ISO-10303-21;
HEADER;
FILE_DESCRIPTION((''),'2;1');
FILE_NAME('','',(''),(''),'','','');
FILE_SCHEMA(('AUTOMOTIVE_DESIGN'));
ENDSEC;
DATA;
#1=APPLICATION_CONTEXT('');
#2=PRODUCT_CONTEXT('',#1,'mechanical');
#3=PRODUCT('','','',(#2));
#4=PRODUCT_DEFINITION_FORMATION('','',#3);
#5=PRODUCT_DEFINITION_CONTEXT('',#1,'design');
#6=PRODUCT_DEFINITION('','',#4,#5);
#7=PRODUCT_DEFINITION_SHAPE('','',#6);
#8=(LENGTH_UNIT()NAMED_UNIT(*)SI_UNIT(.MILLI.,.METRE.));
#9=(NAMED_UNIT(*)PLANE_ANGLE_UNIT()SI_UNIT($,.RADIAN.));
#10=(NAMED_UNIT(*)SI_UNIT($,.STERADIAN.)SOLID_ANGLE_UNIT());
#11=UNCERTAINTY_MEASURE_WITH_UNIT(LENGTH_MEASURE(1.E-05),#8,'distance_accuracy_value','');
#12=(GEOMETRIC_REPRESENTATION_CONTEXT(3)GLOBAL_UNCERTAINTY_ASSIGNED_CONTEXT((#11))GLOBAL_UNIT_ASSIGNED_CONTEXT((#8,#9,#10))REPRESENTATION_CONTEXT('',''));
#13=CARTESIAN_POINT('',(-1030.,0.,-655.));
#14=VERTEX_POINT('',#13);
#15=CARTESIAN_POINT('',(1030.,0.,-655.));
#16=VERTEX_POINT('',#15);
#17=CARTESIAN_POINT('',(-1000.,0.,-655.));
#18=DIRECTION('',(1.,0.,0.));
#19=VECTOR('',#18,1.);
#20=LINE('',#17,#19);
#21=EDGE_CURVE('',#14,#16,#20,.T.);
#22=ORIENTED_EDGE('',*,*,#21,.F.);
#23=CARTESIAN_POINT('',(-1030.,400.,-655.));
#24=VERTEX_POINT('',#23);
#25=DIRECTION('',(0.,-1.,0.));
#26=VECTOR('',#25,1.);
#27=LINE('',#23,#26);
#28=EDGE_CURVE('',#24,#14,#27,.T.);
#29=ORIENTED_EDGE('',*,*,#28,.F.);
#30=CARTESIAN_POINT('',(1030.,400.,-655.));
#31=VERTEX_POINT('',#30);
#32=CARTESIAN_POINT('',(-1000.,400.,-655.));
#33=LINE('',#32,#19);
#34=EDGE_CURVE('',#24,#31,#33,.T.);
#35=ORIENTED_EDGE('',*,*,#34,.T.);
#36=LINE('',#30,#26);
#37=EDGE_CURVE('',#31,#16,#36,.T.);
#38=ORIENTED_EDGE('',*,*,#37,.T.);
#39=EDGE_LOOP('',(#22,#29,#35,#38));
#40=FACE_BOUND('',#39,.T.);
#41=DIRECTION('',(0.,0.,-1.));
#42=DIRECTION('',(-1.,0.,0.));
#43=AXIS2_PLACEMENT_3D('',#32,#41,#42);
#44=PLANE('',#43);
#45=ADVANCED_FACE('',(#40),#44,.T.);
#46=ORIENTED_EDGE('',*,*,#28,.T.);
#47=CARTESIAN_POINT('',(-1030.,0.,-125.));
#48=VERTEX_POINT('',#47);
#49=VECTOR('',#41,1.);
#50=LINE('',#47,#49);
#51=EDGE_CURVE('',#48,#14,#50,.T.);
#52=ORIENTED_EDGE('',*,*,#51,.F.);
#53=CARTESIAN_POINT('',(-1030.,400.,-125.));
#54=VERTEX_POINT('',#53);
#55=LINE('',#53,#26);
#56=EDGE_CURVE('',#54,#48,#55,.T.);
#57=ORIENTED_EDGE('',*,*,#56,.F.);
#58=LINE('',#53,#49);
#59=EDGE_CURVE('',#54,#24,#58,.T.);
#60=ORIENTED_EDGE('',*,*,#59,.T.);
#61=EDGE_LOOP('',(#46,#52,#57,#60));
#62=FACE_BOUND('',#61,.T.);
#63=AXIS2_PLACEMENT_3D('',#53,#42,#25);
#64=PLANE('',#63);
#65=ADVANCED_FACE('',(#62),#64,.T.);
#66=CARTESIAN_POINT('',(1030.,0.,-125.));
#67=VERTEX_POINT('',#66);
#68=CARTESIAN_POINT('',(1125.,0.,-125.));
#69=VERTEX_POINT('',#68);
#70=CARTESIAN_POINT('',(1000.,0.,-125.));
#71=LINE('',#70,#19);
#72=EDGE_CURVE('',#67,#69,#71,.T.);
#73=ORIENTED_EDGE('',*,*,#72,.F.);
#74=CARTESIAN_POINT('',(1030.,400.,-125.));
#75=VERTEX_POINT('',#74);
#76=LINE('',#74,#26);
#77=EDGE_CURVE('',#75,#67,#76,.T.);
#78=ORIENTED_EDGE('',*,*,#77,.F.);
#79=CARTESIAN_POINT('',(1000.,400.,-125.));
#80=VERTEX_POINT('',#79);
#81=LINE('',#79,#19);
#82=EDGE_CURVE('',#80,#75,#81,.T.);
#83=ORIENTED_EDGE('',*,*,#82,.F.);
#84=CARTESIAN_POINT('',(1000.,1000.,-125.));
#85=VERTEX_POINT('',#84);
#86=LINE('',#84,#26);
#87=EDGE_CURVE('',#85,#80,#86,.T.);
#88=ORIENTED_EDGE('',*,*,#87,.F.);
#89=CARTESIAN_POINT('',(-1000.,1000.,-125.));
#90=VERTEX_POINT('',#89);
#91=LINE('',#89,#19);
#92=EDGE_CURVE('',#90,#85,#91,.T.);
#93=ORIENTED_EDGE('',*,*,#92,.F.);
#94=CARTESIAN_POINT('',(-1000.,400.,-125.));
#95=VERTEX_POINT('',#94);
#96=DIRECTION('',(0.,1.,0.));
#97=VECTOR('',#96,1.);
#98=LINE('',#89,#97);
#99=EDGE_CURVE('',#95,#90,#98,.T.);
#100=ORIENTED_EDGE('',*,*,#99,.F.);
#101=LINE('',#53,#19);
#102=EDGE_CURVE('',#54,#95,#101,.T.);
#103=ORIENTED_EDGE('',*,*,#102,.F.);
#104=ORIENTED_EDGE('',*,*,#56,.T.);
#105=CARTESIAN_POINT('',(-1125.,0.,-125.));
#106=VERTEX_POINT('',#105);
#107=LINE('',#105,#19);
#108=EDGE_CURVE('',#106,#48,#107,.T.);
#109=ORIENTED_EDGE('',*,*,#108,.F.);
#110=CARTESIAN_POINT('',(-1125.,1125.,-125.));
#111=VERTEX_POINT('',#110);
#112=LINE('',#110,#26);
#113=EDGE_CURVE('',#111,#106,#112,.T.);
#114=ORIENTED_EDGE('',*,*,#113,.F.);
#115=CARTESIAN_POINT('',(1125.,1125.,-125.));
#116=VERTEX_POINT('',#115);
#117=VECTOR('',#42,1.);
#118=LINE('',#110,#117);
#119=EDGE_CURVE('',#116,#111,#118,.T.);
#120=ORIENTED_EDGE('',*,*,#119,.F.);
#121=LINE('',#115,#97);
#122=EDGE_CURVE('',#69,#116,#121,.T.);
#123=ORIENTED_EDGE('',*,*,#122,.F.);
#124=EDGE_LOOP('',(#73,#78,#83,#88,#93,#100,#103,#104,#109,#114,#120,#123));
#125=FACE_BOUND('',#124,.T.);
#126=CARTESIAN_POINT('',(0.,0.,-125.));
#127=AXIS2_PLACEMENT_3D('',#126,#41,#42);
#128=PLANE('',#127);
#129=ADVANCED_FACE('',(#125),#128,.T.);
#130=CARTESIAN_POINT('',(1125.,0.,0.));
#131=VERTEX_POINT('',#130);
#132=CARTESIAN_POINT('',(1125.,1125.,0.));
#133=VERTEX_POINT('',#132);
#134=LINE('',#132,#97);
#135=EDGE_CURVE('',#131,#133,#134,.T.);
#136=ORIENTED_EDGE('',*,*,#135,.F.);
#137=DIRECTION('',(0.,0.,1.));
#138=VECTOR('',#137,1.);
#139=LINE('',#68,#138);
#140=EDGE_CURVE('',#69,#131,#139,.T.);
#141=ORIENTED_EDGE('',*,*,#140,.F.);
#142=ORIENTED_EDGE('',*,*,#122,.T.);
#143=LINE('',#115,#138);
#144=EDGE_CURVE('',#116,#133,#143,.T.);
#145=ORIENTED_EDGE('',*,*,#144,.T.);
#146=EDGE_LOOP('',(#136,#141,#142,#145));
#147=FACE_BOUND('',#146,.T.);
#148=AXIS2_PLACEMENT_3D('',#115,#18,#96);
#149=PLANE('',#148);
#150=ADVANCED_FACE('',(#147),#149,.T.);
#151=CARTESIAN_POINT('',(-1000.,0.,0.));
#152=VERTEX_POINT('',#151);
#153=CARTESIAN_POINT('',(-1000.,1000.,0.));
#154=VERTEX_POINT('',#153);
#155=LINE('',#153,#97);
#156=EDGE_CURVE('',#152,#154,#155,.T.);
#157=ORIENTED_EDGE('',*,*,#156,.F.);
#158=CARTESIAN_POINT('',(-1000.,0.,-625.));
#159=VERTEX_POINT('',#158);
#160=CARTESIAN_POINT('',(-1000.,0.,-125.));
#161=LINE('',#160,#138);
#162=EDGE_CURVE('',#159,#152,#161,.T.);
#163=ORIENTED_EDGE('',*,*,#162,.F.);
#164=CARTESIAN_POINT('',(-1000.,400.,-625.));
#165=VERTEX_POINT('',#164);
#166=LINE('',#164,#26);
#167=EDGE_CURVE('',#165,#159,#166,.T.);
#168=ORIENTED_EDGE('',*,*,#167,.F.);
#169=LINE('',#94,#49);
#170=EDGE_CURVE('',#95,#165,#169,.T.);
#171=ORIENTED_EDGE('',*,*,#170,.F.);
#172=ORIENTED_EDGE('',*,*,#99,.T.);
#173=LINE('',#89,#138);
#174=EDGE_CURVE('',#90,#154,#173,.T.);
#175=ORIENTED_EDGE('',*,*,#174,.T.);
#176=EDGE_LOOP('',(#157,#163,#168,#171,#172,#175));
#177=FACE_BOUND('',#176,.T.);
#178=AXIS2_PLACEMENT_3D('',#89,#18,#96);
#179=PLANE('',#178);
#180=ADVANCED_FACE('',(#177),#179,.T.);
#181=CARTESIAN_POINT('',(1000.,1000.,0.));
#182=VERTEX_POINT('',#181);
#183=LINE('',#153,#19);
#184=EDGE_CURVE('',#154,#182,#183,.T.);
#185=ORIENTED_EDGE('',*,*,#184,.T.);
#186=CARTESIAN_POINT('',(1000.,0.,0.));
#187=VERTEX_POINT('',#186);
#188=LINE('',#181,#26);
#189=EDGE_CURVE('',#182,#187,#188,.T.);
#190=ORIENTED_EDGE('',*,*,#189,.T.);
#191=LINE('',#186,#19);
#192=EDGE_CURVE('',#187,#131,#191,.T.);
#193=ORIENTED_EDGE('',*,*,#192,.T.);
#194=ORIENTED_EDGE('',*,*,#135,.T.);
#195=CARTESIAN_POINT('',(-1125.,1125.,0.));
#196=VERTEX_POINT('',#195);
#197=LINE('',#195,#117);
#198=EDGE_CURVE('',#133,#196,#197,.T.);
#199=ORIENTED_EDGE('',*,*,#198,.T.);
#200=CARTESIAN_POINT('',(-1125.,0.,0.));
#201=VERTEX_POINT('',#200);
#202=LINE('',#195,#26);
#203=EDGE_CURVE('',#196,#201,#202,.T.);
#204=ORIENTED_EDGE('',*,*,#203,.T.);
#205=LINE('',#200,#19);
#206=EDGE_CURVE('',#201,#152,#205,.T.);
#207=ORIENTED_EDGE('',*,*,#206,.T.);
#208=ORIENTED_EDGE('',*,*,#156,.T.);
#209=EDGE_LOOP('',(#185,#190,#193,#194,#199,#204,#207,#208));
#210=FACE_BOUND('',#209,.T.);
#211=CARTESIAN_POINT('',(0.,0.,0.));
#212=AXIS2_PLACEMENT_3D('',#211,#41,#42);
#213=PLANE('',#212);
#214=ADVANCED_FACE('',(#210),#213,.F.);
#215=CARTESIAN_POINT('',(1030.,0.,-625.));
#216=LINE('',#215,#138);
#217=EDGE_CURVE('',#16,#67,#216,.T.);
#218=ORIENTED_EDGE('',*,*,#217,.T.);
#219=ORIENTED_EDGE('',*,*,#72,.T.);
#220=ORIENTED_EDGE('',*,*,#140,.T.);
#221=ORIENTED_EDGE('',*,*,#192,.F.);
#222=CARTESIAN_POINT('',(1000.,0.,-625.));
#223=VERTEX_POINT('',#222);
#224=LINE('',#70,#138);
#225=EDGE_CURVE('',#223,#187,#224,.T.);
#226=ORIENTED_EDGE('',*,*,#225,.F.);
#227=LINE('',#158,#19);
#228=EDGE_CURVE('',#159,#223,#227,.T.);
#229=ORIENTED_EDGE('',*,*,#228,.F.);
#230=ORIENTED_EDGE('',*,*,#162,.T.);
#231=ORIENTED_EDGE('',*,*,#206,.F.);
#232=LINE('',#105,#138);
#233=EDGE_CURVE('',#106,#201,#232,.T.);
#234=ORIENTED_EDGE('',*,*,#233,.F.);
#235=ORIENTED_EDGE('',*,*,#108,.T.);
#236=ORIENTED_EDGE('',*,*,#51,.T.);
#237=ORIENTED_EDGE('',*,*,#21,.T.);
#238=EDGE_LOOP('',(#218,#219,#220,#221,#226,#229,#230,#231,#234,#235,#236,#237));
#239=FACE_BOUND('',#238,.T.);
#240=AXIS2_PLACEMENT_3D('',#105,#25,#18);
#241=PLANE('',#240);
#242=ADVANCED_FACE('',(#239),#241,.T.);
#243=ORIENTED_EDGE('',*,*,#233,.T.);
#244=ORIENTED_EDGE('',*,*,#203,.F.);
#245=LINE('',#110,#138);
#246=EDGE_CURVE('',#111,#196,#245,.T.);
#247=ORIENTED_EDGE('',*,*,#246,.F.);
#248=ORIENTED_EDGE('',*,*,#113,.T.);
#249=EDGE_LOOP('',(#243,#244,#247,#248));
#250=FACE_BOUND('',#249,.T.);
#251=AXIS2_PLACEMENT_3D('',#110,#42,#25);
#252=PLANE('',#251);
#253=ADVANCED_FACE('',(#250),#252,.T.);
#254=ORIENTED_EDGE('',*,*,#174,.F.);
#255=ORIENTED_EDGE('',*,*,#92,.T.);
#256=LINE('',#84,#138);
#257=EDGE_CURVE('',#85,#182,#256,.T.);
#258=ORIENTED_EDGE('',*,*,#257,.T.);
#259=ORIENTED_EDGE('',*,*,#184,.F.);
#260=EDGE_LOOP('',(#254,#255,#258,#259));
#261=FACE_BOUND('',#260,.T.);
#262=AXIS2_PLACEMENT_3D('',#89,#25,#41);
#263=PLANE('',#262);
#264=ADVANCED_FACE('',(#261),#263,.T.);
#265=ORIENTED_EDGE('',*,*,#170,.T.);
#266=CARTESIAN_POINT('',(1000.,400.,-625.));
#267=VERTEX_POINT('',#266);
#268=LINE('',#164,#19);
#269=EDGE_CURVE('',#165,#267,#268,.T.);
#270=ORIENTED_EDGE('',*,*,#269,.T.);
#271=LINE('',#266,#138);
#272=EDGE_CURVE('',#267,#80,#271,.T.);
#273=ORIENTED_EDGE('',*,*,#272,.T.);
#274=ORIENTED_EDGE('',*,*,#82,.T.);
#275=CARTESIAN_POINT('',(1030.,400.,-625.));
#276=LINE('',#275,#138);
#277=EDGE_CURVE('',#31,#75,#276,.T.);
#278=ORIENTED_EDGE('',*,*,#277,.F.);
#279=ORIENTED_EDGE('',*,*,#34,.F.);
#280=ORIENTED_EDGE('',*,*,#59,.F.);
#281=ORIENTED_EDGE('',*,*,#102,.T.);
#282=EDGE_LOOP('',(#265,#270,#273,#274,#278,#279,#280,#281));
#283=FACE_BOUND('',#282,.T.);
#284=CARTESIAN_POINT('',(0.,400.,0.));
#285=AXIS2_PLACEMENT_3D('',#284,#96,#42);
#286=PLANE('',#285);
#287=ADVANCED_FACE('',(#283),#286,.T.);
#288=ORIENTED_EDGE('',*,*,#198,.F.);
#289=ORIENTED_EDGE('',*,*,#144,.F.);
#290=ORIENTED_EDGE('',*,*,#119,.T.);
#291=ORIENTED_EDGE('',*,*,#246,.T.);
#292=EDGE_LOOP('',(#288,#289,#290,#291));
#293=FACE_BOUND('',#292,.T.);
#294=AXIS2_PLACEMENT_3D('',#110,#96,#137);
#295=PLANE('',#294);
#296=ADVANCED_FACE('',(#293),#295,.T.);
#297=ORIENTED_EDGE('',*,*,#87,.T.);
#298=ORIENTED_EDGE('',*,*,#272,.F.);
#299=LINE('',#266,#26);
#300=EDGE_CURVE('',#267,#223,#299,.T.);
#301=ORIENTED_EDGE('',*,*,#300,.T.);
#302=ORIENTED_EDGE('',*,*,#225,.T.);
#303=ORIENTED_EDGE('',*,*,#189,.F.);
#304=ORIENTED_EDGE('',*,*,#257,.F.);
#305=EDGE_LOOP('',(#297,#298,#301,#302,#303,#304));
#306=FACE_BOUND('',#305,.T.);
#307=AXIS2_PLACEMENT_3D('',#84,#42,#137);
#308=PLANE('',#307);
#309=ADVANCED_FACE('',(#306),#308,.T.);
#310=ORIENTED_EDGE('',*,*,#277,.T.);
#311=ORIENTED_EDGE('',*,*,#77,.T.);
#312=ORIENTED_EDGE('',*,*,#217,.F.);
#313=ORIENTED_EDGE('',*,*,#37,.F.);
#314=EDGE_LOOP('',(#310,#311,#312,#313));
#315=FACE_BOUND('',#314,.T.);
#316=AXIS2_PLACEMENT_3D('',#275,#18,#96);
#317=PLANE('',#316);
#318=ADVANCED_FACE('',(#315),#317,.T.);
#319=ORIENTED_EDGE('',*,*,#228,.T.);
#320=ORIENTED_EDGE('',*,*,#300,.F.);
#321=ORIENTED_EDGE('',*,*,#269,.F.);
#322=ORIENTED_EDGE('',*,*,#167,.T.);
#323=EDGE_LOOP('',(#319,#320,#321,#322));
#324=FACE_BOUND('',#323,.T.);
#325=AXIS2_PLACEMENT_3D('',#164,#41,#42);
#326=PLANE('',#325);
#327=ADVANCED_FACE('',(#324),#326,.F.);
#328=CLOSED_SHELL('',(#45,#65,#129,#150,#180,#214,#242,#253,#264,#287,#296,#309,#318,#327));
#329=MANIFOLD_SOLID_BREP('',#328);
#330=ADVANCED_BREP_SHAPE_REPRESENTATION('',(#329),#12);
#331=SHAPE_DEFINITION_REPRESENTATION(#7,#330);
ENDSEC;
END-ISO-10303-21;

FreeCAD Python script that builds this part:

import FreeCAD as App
import Part
import Sketcher
from FreeCAD import Vector
Q = App.Units.Quantity

doc = App.newDocument("Part")
body = doc.addObject("PartDesign::Body", "Body")

# Sketch on XY plane
sketch1 = doc.addObject("Sketcher::SketchObject", "Sketch")
body.addObject(sketch1)
sketch1.AttachmentSupport = (doc.XY_Plane, [""])
sketch1.MapMode = "FlatFace"
sketch1.addGeometry([
    Part.LineSegment(Vector(-1125, 1125, 0), Vector(-1125, 0, 0)),  # 0
    Part.LineSegment(Vector(-1125, 0, 0), Vector(-1000, 0, 0)),  # 1
    Part.LineSegment(Vector(-1000, 0, 0), Vector(-1000, 1000, 0)),  # 2
    Part.LineSegment(Vector(-1000, 1000, 0), Vector(1000, 1000, 0)),  # 3
    Part.LineSegment(Vector(1000, 1000, 0), Vector(1000, 0, 0)),  # 4
    Part.LineSegment(Vector(1000, 0, 0), Vector(1125, 0, 0)),  # 5
    Part.LineSegment(Vector(1125, 0, 0), Vector(1125, 1125, 0)),  # 6
    Part.LineSegment(Vector(1125, 1125, 0), Vector(-1125, 1125, 0)),  # 7
], False)
sketch1.addConstraint([
    Sketcher.Constraint("Coincident", 0, 2, 1, 1),
    Sketcher.Constraint("Coincident", 1, 2, 2, 1),
    Sketcher.Constraint("Coincident", 2, 2, 3, 1),
    Sketcher.Constraint("Coincident", 3, 2, 4, 1),
    Sketcher.Constraint("Coincident", 4, 2, 5, 1),
    Sketcher.Constraint("Coincident", 5, 2, 6, 1),
    Sketcher.Constraint("Coincident", 6, 2, 7, 1),
    Sketcher.Constraint("Coincident", 7, 2, 0, 1),
    Sketcher.Constraint("Vertical", 0),
    Sketcher.Constraint("Horizontal", 1),
    Sketcher.Constraint("Vertical", 2),
    Sketcher.Constraint("Horizontal", 3),
    Sketcher.Constraint("Vertical", 4),
    Sketcher.Constraint("Horizontal", 5),
    Sketcher.Constraint("Vertical", 6),
    Sketcher.Constraint("Horizontal", 7),
    Sketcher.Constraint("Symmetric", 1, 2, 4, 2, -1, 1),
    Sketcher.Constraint("Symmetric", 0, 2, 5, 2, -2),
    Sketcher.Constraint("DistanceX", 1, 1, 1, 2, Q("125 mm")),
    Sketcher.Constraint("DistanceX", 3, 1, 3, 2, Q("2000 mm")),
    Sketcher.Constraint("DistanceY", 0, 2, 0, 1, Q("1125 mm")),
    Sketcher.Constraint("DistanceY", 2, 1, 2, 2, Q("1000 mm")),
])
pad1 = doc.addObject("PartDesign::Pad", "Pad")
body.addObject(pad1)
pad1.Profile = sketch1
pad1.Length = 125
pad1.Reversed = True

# Sketch on XZ plane
sketch2 = doc.addObject("Sketcher::SketchObject", "Sketch001")
body.addObject(sketch2)
sketch2.AttachmentSupport = (doc.XZ_Plane, [""])
sketch2.MapMode = "FlatFace"
sketch2.addGeometry([
    Part.LineSegment(Vector(-1000, -625, 0), Vector(-1000, -125, 0)),  # 0
    Part.LineSegment(Vector(-1000, -125, 0), Vector(-1030, -125, 0)),  # 1
    Part.LineSegment(Vector(-1030, -125, 0), Vector(-1030, -655, 0)),  # 2
    Part.LineSegment(Vector(-1030, -655, 0), Vector(1030, -655, 0)),  # 3
    Part.LineSegment(Vector(1030, -655, 0), Vector(1030, -125, 0)),  # 4
    Part.LineSegment(Vector(1030, -125, 0), Vector(1000, -125, 0)),  # 5
    Part.LineSegment(Vector(1000, -125, 0), Vector(1000, -625, 0)),  # 6
    Part.LineSegment(Vector(1000, -625, 0), Vector(-1000, -625, 0)),  # 7
], False)
sketch2.addConstraint([
    Sketcher.Constraint("Coincident", 0, 2, 1, 1),
    Sketcher.Constraint("Coincident", 1, 2, 2, 1),
    Sketcher.Constraint("Coincident", 2, 2, 3, 1),
    Sketcher.Constraint("Coincident", 3, 2, 4, 1),
    Sketcher.Constraint("Coincident", 4, 2, 5, 1),
    Sketcher.Constraint("Coincident", 5, 2, 6, 1),
    Sketcher.Constraint("Coincident", 6, 2, 7, 1),
    Sketcher.Constraint("Coincident", 7, 2, 0, 1),
    Sketcher.Constraint("Vertical", 0),
    Sketcher.Constraint("Horizontal", 1),
    Sketcher.Constraint("Vertical", 2),
    Sketcher.Constraint("Horizontal", 3),
    Sketcher.Constraint("Vertical", 4),
    Sketcher.Constraint("Horizontal", 5),
    Sketcher.Constraint("Vertical", 6),
    Sketcher.Constraint("Horizontal", 7),
    Sketcher.Constraint("Symmetric", 1, 2, 4, 2, -2),
    Sketcher.Constraint("Equal", 1, 5),
    Sketcher.Constraint("DistanceX", 1, 2, 1, 1, Q("30 mm")),
    Sketcher.Constraint("DistanceX", 3, 1, 3, 2, Q("2060 mm")),
    Sketcher.Constraint("DistanceY", 0, 1, 0, 2, Q("500 mm")),
    Sketcher.Constraint("DistanceY", 2, 2, 2, 1, Q("530 mm")),
    Sketcher.Constraint("DistanceY", 0, 2, -1, 1, Q("125 mm")),
])
pad2 = doc.addObject("PartDesign::Pad", "Pad001")
body.addObject(pad2)
pad2.Profile = sketch2
pad2.Length = 400
pad2.Reversed = True

doc.recompute()
